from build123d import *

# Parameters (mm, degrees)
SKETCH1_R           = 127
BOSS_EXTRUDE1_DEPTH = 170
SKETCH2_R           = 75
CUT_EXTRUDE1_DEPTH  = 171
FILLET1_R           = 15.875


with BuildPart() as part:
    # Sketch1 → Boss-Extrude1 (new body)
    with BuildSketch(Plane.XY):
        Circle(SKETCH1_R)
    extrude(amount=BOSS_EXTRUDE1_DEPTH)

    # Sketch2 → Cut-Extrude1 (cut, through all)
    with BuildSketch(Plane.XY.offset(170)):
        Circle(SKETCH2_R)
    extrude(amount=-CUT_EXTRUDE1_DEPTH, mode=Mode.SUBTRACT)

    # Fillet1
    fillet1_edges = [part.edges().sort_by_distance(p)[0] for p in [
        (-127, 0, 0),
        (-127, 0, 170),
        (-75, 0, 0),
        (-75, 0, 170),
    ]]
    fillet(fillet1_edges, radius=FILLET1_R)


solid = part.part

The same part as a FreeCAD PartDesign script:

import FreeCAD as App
import Part
import Sketcher


def edges_at(feature, points):
    """Names of the edges that pass closest to the given points."""
    edges = feature.Shape.Edges
    near = lambda p: min(range(len(edges)), key=lambda i: edges[i].distToShape(Part.Vertex(*p))[0])
    return sorted({f"Edge{near(p) + 1}" for p in points})

doc = App.newDocument("Part")
body = doc.addObject("PartDesign::Body", "Body")

# Sketch on XY plane
sketch1 = body.newObject("Sketcher::SketchObject", "Sketch")
sketch1.AttachmentSupport = (doc.getObject("XY_Plane"), [""])
sketch1.MapMode = "FlatFace"
sketch1.addGeometry(Part.Circle(App.Vector(0, 0, 0), App.Vector(0, 0, 1), 127), False)
sketch1.addConstraint(Sketcher.Constraint("Coincident", 0, 3, -1, 1))
sketch1.addConstraint(Sketcher.Constraint("Diameter", 0, 254.0))
pad1 = body.newObject("PartDesign::Pad", "Pad")
pad1.Profile = sketch1
pad1.Length = 170

# Sketch on XY plane
sketch2 = body.newObject("Sketcher::SketchObject", "Sketch001")
sketch2.AttachmentSupport = (doc.getObject("XY_Plane"), [""])
sketch2.MapMode = "FlatFace"
sketch2.AttachmentOffset = App.Placement(App.Vector(0, 0, 170), App.Rotation())
sketch2.addGeometry(Part.Circle(App.Vector(0, 0, 0), App.Vector(0, 0, 1), 75), False)
sketch2.addConstraint(Sketcher.Constraint("Coincident", 0, 3, -1, 1))
sketch2.addConstraint(Sketcher.Constraint("Diameter", 0, 150.0))
pocket1 = body.newObject("PartDesign::Pocket", "Pocket")
pocket1.Profile = sketch2
pocket1.Type = "ThroughAll"
doc.recompute()

fillet = body.newObject("PartDesign::Fillet", "Fillet")
fillet.Base = (pocket1, edges_at(pocket1, [
    (-127, 0, 0),
    (-127, 0, 170),
    (-75, 0, 0),
    (-75, 0, 170),
]))
fillet.Radius = 15.875

doc.recompute()
